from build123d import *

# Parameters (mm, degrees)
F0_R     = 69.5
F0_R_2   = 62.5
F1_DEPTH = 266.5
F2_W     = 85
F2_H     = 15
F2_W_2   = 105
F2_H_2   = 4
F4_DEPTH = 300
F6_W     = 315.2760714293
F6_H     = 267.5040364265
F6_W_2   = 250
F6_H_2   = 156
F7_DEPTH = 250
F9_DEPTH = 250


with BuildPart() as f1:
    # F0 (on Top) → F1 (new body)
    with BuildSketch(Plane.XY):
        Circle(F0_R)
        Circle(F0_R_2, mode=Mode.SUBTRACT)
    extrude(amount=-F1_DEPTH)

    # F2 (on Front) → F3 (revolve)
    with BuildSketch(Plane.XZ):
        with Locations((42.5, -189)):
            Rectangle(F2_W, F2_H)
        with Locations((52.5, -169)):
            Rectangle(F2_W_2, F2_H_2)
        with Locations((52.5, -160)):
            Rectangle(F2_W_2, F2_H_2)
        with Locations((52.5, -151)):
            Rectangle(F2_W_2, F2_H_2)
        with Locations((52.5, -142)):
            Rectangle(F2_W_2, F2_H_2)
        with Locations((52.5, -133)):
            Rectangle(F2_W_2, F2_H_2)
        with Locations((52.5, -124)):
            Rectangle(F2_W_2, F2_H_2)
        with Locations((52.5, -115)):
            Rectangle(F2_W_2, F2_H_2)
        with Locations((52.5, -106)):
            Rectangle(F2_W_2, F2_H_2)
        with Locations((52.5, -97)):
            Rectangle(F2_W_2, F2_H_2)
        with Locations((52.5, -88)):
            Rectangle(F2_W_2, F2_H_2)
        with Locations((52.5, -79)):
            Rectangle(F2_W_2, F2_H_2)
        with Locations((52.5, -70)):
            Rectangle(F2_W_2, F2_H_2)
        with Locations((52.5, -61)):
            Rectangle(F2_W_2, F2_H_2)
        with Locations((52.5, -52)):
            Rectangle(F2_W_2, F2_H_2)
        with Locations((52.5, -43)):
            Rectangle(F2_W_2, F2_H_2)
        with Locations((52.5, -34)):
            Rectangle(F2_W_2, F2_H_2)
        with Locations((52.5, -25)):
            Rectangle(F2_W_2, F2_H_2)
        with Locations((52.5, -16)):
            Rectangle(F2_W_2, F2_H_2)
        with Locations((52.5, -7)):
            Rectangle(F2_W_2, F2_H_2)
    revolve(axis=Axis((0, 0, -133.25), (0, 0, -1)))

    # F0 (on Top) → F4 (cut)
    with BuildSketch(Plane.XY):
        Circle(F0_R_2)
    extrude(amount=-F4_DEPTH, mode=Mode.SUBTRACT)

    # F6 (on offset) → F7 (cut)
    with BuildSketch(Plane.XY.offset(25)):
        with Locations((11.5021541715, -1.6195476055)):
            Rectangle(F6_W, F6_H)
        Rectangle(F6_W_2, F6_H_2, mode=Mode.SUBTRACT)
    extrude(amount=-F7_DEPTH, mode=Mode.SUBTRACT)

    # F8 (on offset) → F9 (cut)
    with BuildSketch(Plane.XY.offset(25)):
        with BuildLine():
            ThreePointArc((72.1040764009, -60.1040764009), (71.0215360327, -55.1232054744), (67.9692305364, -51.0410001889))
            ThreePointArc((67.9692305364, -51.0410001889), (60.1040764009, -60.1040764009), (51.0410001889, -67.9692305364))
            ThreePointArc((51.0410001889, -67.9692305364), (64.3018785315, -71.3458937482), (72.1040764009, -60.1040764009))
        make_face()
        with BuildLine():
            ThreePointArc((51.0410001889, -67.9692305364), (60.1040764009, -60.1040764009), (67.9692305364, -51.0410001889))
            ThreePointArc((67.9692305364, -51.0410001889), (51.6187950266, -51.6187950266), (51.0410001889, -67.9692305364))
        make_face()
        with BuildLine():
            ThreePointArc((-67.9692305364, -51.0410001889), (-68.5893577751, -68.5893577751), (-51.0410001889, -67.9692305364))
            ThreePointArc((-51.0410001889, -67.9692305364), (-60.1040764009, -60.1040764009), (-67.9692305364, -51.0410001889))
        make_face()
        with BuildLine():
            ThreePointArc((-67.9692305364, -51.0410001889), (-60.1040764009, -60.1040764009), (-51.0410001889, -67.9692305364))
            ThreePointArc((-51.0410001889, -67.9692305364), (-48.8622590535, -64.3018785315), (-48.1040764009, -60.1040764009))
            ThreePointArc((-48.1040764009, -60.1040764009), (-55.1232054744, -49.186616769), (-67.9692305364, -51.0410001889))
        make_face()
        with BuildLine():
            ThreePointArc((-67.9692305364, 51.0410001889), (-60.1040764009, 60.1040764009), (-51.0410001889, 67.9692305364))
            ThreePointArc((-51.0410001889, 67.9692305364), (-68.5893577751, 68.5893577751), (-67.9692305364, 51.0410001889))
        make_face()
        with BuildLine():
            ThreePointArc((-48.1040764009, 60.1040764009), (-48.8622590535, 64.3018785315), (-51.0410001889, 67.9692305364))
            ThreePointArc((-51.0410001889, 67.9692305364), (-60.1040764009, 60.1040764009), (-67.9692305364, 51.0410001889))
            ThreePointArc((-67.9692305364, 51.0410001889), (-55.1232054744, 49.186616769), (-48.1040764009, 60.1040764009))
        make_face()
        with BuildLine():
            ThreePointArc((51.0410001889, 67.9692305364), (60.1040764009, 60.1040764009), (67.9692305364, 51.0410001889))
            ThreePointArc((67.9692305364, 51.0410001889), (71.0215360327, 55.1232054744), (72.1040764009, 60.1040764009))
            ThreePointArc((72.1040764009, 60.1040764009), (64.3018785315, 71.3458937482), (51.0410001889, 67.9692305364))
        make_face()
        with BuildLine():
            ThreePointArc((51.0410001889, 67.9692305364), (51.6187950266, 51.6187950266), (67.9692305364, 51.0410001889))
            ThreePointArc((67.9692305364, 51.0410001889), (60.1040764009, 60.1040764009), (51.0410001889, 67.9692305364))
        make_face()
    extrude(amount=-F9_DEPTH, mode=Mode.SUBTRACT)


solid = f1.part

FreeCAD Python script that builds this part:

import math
import FreeCAD as App
import Part
import Sketcher

V = App.Vector


def add_polygon(sketch, points):
    """Adds a closed chain of lines whose ends are joined by coincident constraints."""
    first, n = sketch.GeometryCount, len(points)
    for a, b in zip(points, points[1:] + points[:1]):
        sketch.addGeometry(Part.LineSegment(App.Vector(*a, 0), App.Vector(*b, 0)), False)
    for i in range(n):
        sketch.addConstraint(Sketcher.Constraint("Coincident", first + i, 2, first + (i + 1) % n, 1))

doc = App.newDocument("Part")
body = doc.addObject("PartDesign::Body", "Body")

sketch1 = body.newObject("Sketcher::SketchObject", "Sketch")
sketch1.AttachmentSupport = (doc.getObject("XY_Plane"), [""])
sketch1.MapMode = "FlatFace"
sketch1.addGeometry(Part.Circle(V(0, 0, 0), V(0, 0, 1), 70), False)
sketch1.addGeometry(Part.Circle(V(0, 0, 0), V(0, 0, 1), 62), False)
sketch1.addConstraint(Sketcher.Constraint("Coincident", 0, 3, -1, 1))
sketch1.addConstraint(Sketcher.Constraint("Coincident", 1, 3, -1, 1))
sketch1.addConstraint(Sketcher.Constraint("Diameter", 0, 139.0))
sketch1.addConstraint(Sketcher.Constraint("Diameter", 1, 125.0))
pad1 = body.newObject("PartDesign::Pad", "Pad")
pad1.Profile = sketch1
pad1.Length = 266.5
pad1.Reversed = True

sketch2 = body.newObject("Sketcher::SketchObject", "Sketch001")
sketch2.AttachmentSupport = (doc.getObject("XZ_Plane"), [""])
sketch2.MapMode = "FlatFace"
add_polygon(sketch2, [(0, -181.5), (0, -196.5), (85, -196.5), (85, -181.5)])
add_polygon(sketch2, [(0, -167), (0, -171), (105, -171), (105, -167)])
add_polygon(sketch2, [(0, -158), (0, -162), (105, -162), (105, -158)])
add_polygon(sketch2, [(0, -149), (0, -153), (105, -153), (105, -149)])
add_polygon(sketch2, [(0, -140), (0, -144), (105, -144), (105, -140)])
add_polygon(sketch2, [(0, -131), (0, -135), (105, -135), (105, -131)])
add_polygon(sketch2, [(0, -122), (0, -126), (105, -126), (105, -122)])
add_polygon(sketch2, [(0, -113), (0, -117), (105, -117), (105, -113)])
add_polygon(sketch2, [(0, -104), (0, -108), (105, -108), (105, -104)])
add_polygon(sketch2, [(0, -95), (0, -99), (105, -99), (105, -95)])
add_polygon(sketch2, [(0, -86), (0, -90), (105, -90), (105, -86)])
add_polygon(sketch2, [(0, -77), (0, -81), (105, -81), (105, -77)])
add_polygon(sketch2, [(0, -68), (0, -72), (105, -72), (105, -68)])
add_polygon(sketch2, [(0, -59), (0, -63), (105, -63), (105, -59)])
add_polygon(sketch2, [(0, -50), (0, -54), (105, -54), (105, -50)])
add_polygon(sketch2, [(0, -41), (0, -45), (105, -45), (105, -41)])
add_polygon(sketch2, [(0, -32), (0, -36), (105, -36), (105, -32)])
add_polygon(sketch2, [(0, -23), (0, -27), (105, -27), (105, -23)])
add_polygon(sketch2, [(0, -14), (0, -18), (105, -18), (105, -14)])
add_polygon(sketch2, [(0, -5), (0, -9), (105, -9), (105, -5)])
sketch2.addConstraint(Sketcher.Constraint("Vertical", 0))
sketch2.addConstraint(Sketcher.Constraint("Horizontal", 1))
sketch2.addConstraint(Sketcher.Constraint("Vertical", 2))
sketch2.addConstraint(Sketcher.Constraint("Horizontal", 3))
sketch2.addConstraint(Sketcher.Constraint("Vertical", 4))
sketch2.addConstraint(Sketcher.Constraint("Horizontal", 5))
sketch2.addConstraint(Sketcher.Constraint("Vertical", 6))
sketch2.addConstraint(Sketcher.Constraint("Horizontal", 7))
sketch2.addConstraint(Sketcher.Constraint("Vertical", 8))
sketch2.addConstraint(Sketcher.Constraint("Horizontal", 9))
sketch2.addConstraint(Sketcher.Constraint("Vertical", 10))
sketch2.addConstraint(Sketcher.Constraint("Horizontal", 11))
sketch2.addConstraint(Sketcher.Constraint("Vertical", 12))
sketch2.addConstraint(Sketcher.Constraint("Horizontal", 13))
sketch2.addConstraint(Sketcher.Constraint("Vertical", 14))
sketch2.addConstraint(Sketcher.Constraint("Horizontal", 15))
sketch2.addConstraint(Sketcher.Constraint("Vertical", 16))
sketch2.addConstraint(Sketcher.Constraint("Horizontal", 17))
sketch2.addConstraint(Sketcher.Constraint("Vertical", 18))
sketch2.addConstraint(Sketcher.Constraint("Horizontal", 19))
sketch2.addConstraint(Sketcher.Constraint("Vertical", 20))
sketch2.addConstraint(Sketcher.Constraint("Horizontal", 21))
sketch2.addConstraint(Sketcher.Constraint("Vertical", 22))
sketch2.addConstraint(Sketcher.Constraint("Horizontal", 23))
sketch2.addConstraint(Sketcher.Constraint("Vertical", 24))
sketch2.addConstraint(Sketcher.Constraint("Horizontal", 25))
sketch2.addConstraint(Sketcher.Constraint("Vertical", 26))
sketch2.addConstraint(Sketcher.Constraint("Horizontal", 27))
sketch2.addConstraint(Sketcher.Constraint("Vertical", 28))
sketch2.addConstraint(Sketcher.Constraint("Horizontal", 29))
sketch2.addConstraint(Sketcher.Constraint("Vertical", 30))
sketch2.addConstraint(Sketcher.Constraint("Horizontal", 31))
sketch2.addConstraint(Sketcher.Constraint("Vertical", 32))
sketch2.addConstraint(Sketcher.Constraint("Horizontal", 33))
sketch2.addConstraint(Sketcher.Constraint("Vertical", 34))
sketch2.addConstraint(Sketcher.Constraint("Horizontal", 35))
sketch2.addConstraint(Sketcher.Constraint("Vertical", 36))
sketch2.addConstraint(Sketcher.Constraint("Horizontal", 37))
sketch2.addConstraint(Sketcher.Constraint("Vertical", 38))
sketch2.addConstraint(Sketcher.Constraint("Horizontal", 39))
sketch2.addConstraint(Sketcher.Constraint("Vertical", 40))
sketch2.addConstraint(Sketcher.Constraint("Horizontal", 41))
sketch2.addConstraint(Sketcher.Constraint("Vertical", 42))
sketch2.addConstraint(Sketcher.Constraint("Horizontal", 43))
sketch2.addConstraint(Sketcher.Constraint("Vertical", 44))
sketch2.addConstraint(Sketcher.Constraint("Horizontal", 45))
sketch2.addConstraint(Sketcher.Constraint("Vertical", 46))
sketch2.addConstraint(Sketcher.Constraint("Horizontal", 47))
sketch2.addConstraint(Sketcher.Constraint("Vertical", 48))
sketch2.addConstraint(Sketcher.Constraint("Horizontal", 49))
sketch2.addConstraint(Sketcher.Constraint("Vertical", 50))
sketch2.addConstraint(Sketcher.Constraint("Horizontal", 51))
sketch2.addConstraint(Sketcher.Constraint("Vertical", 52))
sketch2.addConstraint(Sketcher.Constraint("Horizontal", 53))
sketch2.addConstraint(Sketcher.Constraint("Vertical", 54))
sketch2.addConstraint(Sketcher.Constraint("Horizontal", 55))
sketch2.addConstraint(Sketcher.Constraint("Vertical", 56))
sketch2.addConstraint(Sketcher.Constraint("Horizontal", 57))
sketch2.addConstraint(Sketcher.Constraint("Vertical", 58))
sketch2.addConstraint(Sketcher.Constraint("Horizontal", 59))
sketch2.addConstraint(Sketcher.Constraint("Vertical", 60))
sketch2.addConstraint(Sketcher.Constraint("Horizontal", 61))
sketch2.addConstraint(Sketcher.Constraint("Vertical", 62))
sketch2.addConstraint(Sketcher.Constraint("Horizontal", 63))
sketch2.addConstraint(Sketcher.Constraint("Vertical", 64))
sketch2.addConstraint(Sketcher.Constraint("Horizontal", 65))
sketch2.addConstraint(Sketcher.Constraint("Vertical", 66))
sketch2.addConstraint(Sketcher.Constraint("Horizontal", 67))
sketch2.addConstraint(Sketcher.Constraint("Vertical", 68))
sketch2.addConstraint(Sketcher.Constraint("Horizontal", 69))
sketch2.addConstraint(Sketcher.Constraint("Vertical", 70))
sketch2.addConstraint(Sketcher.Constraint("Horizontal", 71))
sketch2.addConstraint(Sketcher.Constraint("Vertical", 72))
sketch2.addConstraint(Sketcher.Constraint("Horizontal", 73))
sketch2.addConstraint(Sketcher.Constraint("Vertical", 74))
sketch2.addConstraint(Sketcher.Constraint("Horizontal", 75))
sketch2.addConstraint(Sketcher.Constraint("Vertical", 76))
sketch2.addConstraint(Sketcher.Constraint("Horizontal", 77))
sketch2.addConstraint(Sketcher.Constraint("Vertical", 78))
sketch2.addConstraint(Sketcher.Constraint("Horizontal", 79))
sketch2.addConstraint(Sketcher.Constraint("PointOnObject", 0, 2, -2))
sketch2.addConstraint(Sketcher.Constraint("PointOnObject", 4, 2, -2))
sketch2.addConstraint(Sketcher.Constraint("PointOnObject", 8, 2, -2))
sketch2.addConstraint(Sketcher.Constraint("PointOnObject", 12, 2, -2))
sketch2.addConstraint(Sketcher.Constraint("PointOnObject", 16, 2, -2))
sketch2.addConstraint(Sketcher.Constraint("PointOnObject", 20, 2, -2))
sketch2.addConstraint(Sketcher.Constraint("PointOnObject", 24, 2, -2))
sketch2.addConstraint(Sketcher.Constraint("PointOnObject", 28, 2, -2))
sketch2.addConstraint(Sketcher.Constraint("PointOnObject", 32, 2, -2))
sketch2.addConstraint(Sketcher.Constraint("PointOnObject", 36, 2, -2))
sketch2.addConstraint(Sketcher.Constraint("PointOnObject", 40, 2, -2))
sketch2.addConstraint(Sketcher.Constraint("PointOnObject", 44, 2, -2))
sketch2.addConstraint(Sketcher.Constraint("PointOnObject", 48, 2, -2))
sketch2.addConstraint(Sketcher.Constraint("PointOnObject", 52, 2, -2))
sketch2.addConstraint(Sketcher.Constraint("PointOnObject", 56, 2, -2))
sketch2.addConstraint(Sketcher.Constraint("PointOnObject", 60, 2, -2))
sketch2.addConstraint(Sketcher.Constraint("PointOnObject", 64, 2, -2))
sketch2.addConstraint(Sketcher.Constraint("PointOnObject", 68, 2, -2))
sketch2.addConstraint(Sketcher.Constraint("PointOnObject", 72, 2, -2))
sketch2.addConstraint(Sketcher.Constraint("PointOnObject", 76, 2, -2))
sketch2.addConstraint(Sketcher.Constraint("Vertical", 6, 2, 9, 2))
sketch2.addConstraint(Sketcher.Constraint("Vertical", 10, 2, 13, 2))
sketch2.addConstraint(Sketcher.Constraint("Vertical", 14, 2, 17, 2))
sketch2.addConstraint(Sketcher.Constraint("Vertical", 18, 2, 21, 2))
sketch2.addConstraint(Sketcher.Constraint("Vertical", 22, 2, 25, 2))
sketch2.addConstraint(Sketcher.Constraint("Vertical", 26, 2, 29, 2))
sketch2.addConstraint(Sketcher.Constraint("Vertical", 30, 2, 33, 2))
sketch2.addConstraint(Sketcher.Constraint("Vertical", 34, 2, 37, 2))
sketch2.addConstraint(Sketcher.Constraint("Vertical", 38, 2, 41, 2))
sketch2.addConstraint(Sketcher.Constraint("Vertical", 42, 2, 45, 2))
sketch2.addConstraint(Sketcher.Constraint("Vertical", 46, 2, 49, 2))
sketch2.addConstraint(Sketcher.Constraint("Vertical", 50, 2, 53, 2))
sketch2.addConstraint(Sketcher.Constraint("Vertical", 54, 2, 57, 2))
sketch2.addConstraint(Sketcher.Constraint("Vertical", 58, 2, 61, 2))
sketch2.addConstraint(Sketcher.Constraint("Vertical", 62, 2, 65, 2))
sketch2.addConstraint(Sketcher.Constraint("Vertical", 66, 2, 69, 2))
sketch2.addConstraint(Sketcher.Constraint("Vertical", 70, 2, 73, 2))
sketch2.addConstraint(Sketcher.Constraint("Vertical", 74, 2, 77, 2))
sketch2.addConstraint(Sketcher.Constraint("Equal", 6, 8))
sketch2.addConstraint(Sketcher.Constraint("Equal", 10, 12))
sketch2.addConstraint(Sketcher.Constraint("Equal", 14, 16))
sketch2.addConstraint(Sketcher.Constraint("Equal", 18, 20))
sketch2.addConstraint(Sketcher.Constraint("Equal", 22, 24))
sketch2.addConstraint(Sketcher.Constraint("Equal", 26, 28))
sketch2.addConstraint(Sketcher.Constraint("Equal", 30, 32))
sketch2.addConstraint(Sketcher.Constraint("Equal", 34, 36))
sketch2.addConstraint(Sketcher.Constraint("Equal", 38, 40))
sketch2.addConstraint(Sketcher.Constraint("Equal", 42, 44))
sketch2.addConstraint(Sketcher.Constraint("Equal", 46, 48))
sketch2.addConstraint(Sketcher.Constraint("Equal", 50, 52))
sketch2.addConstraint(Sketcher.Constraint("Equal", 54, 56))
sketch2.addConstraint(Sketcher.Constraint("Equal", 58, 60))
sketch2.addConstraint(Sketcher.Constraint("Equal", 62, 64))
sketch2.addConstraint(Sketcher.Constraint("Equal", 66, 68))
sketch2.addConstraint(Sketcher.Constraint("Equal", 70, 72))
sketch2.addConstraint(Sketcher.Constraint("Equal", 74, 76))
sketch2.addConstraint(Sketcher.Constraint("DistanceX", 1, 1, 1, 2, 85.0))
sketch2.addConstraint(Sketcher.Constraint("DistanceX", 5, 1, 5, 2, 105.0))
sketch2.addConstraint(Sketcher.Constraint("DistanceY", 0, 2, 0, 1, 15.0))
sketch2.addConstraint(Sketcher.Constraint("DistanceY", 4, 2, 4, 1, 4.0))
sketch2.addConstraint(Sketcher.Constraint("DistanceY", 4, 2, -1, 1, 171.0))
sketch2.addConstraint(Sketcher.Constraint("DistanceY", 8, 2, -1, 1, 162.0))
sketch2.addConstraint(Sketcher.Constraint("DistanceY", 12, 2, -1, 1, 153.0))
sketch2.addConstraint(Sketcher.Constraint("DistanceY", 16, 2, -1, 1, 144.0))
sketch2.addConstraint(Sketcher.Constraint("DistanceY", 20, 2, -1, 1, 135.0))
sketch2.addConstraint(Sketcher.Constraint("DistanceY", 24, 2, -1, 1, 126.0))
sketch2.addConstraint(Sketcher.Constraint("DistanceY", 28, 2, -1, 1, 117.0))
sketch2.addConstraint(Sketcher.Constraint("DistanceY", 32, 2, -1, 1, 108.0))
sketch2.addConstraint(Sketcher.Constraint("DistanceY", 36, 2, -1, 1, 99.0))
sketch2.addConstraint(Sketcher.Constraint("DistanceY", 40, 2, -1, 1, 90.0))
sketch2.addConstraint(Sketcher.Constraint("DistanceY", 44, 2, -1, 1, 81.0))
sketch2.addConstraint(Sketcher.Constraint("DistanceY", 48, 2, -1, 1, 72.0))
sketch2.addConstraint(Sketcher.Constraint("DistanceY", 52, 2, -1, 1, 63.0))
sketch2.addConstraint(Sketcher.Constraint("DistanceY", 56, 2, -1, 1, 54.0))
sketch2.addConstraint(Sketcher.Constraint("DistanceY", 60, 2, -1, 1, 45.0))
sketch2.addConstraint(Sketcher.Constraint("DistanceY", 64, 2, -1, 1, 36.0))
sketch2.addConstraint(Sketcher.Constraint("DistanceY", 68, 2, -1, 1, 27.0))
sketch2.addConstraint(Sketcher.Constraint("DistanceY", 72, 2, -1, 1, 18.0))
sketch2.addConstraint(Sketcher.Constraint("DistanceY", 76, 2, -1, 1, 9.0))
sketch2.addConstraint(Sketcher.Constraint("DistanceY", 0, 2, -1, 1, 196.5))
revolution = body.newObject("PartDesign::Revolution", "Revolution")
revolution.Profile = sketch2
revolution.ReferenceAxis = (sketch2, ["V_Axis"])
revolution.Angle = 360

sketch3 = body.newObject("Sketcher::SketchObject", "Sketch002")
sketch3.AttachmentSupport = (doc.getObject("XY_Plane"), [""])
sketch3.MapMode = "FlatFace"
sketch3.addGeometry(Part.Circle(V(0, 0, 0), V(0, 0, 1), 62), False)
sketch3.addConstraint(Sketcher.Constraint("Coincident", 0, 3, -1, 1))
sketch3.addConstraint(Sketcher.Constraint("Diameter", 0, 125.0))
pocket1 = body.newObject("PartDesign::Pocket", "Pocket")
pocket1.Profile = sketch3
pocket1.Length = 300

sketch4 = body.newObject("Sketcher::SketchObject", "Sketch003")
sketch4.AttachmentSupport = (doc.getObject("XY_Plane"), [""])
sketch4.MapMode = "FlatFace"
sketch4.AttachmentOffset = App.Placement(V(0, 0, 25), App.Rotation())
add_polygon(sketch4, [(-146, 132), (-146, -135), (169, -135), (169, 132)])
add_polygon(sketch4, [(125, -78), (-125, -78), (-125, 78), (125, 78)])
sketch4.addConstraint(Sketcher.Constraint("Vertical", 0))
sketch4.addConstraint(Sketcher.Constraint("Horizontal", 1))
sketch4.addConstraint(Sketcher.Constraint("Vertical", 2))
sketch4.addConstraint(Sketcher.Constraint("Horizontal", 3))
sketch4.addConstraint(Sketcher.Constraint("Horizontal", 4))
sketch4.addConstraint(Sketcher.Constraint("Vertical", 5))
sketch4.addConstraint(Sketcher.Constraint("Horizontal", 6))
sketch4.addConstraint(Sketcher.Constraint("Vertical", 7))
sketch4.addConstraint(Sketcher.Constraint("Symmetric", 4, 2, 6, 2, -1, 1))
sketch4.addConstraint(Sketcher.Constraint("DistanceX", 4, 2, 4, 1, 250.0))
sketch4.addConstraint(Sketcher.Constraint("DistanceY", 5, 1, 5, 2, 156.0))
sketch4.addConstraint(Sketcher.Constraint("DistanceX", 1, 1, 1, 2, 315.276071))
sketch4.addConstraint(Sketcher.Constraint("DistanceY", 0, 2, 0, 1, 267.504036))
sketch4.addConstraint(Sketcher.Constraint("DistanceX", 0, 2, -1, 1, 146.135882))
sketch4.addConstraint(Sketcher.Constraint("DistanceY", -1, 1, 2, 2, 132.132471))
pocket2 = body.newObject("PartDesign::Pocket", "Pocket001")
pocket2.Profile = sketch4
pocket2.Length = 250

sketch5 = body.newObject("Sketcher::SketchObject", "Sketch004")
sketch5.AttachmentSupport = (doc.getObject("XY_Plane"), [""])
sketch5.MapMode = "FlatFace"
sketch5.AttachmentOffset = App.Placement(V(0, 0, 25), App.Rotation())
sketch5.addGeometry(Part.ArcOfCircle(Part.Circle(V(60, -60, 0), V(0, 0, 1), 12), math.radians(0), math.radians(49)), False)
sketch5.addGeometry(Part.ArcOfCircle(Part.Circle(V(60, -60, 0), V(0, 0, 1), 12), math.radians(49), math.radians(221)), False)
sketch5.addGeometry(Part.ArcOfCircle(Part.Circle(V(60, -60, 0), V(0, 0, 1), 12), math.radians(-139), math.radians(0)), False)
sketch5.addGeometry(Part.ArcOfCircle(Part.Circle(V(-60, -60, 0), V(0, 0, 1), 12), math.radians(131), math.radians(360)), False)
sketch5.addGeometry(Part.ArcOfCircle(Part.Circle(V(-60, -60, 0), V(0, 0, 1), 12), math.radians(0), math.radians(131)), False)
sketch5.addGeometry(Part.Circle(V(-60, 60, 0), V(0, 0, 1), 12), False)
sketch5.addGeometry(Part.ArcOfCircle(Part.Circle(V(60, 60, 0), V(0, 0, 1), 12), math.radians(-49), math.radians(0)), False)
sketch5.addGeometry(Part.ArcOfCircle(Part.Circle(V(60, 60, 0), V(0, 0, 1), 12), math.radians(0), math.radians(139)), False)
sketch5.addGeometry(Part.ArcOfCircle(Part.Circle(V(60, 60, 0), V(0, 0, 1), 12), math.radians(139), math.radians(311)), False)
sketch5.addConstraint(Sketcher.Constraint("Tangent", 0, 2, 1, 1))
sketch5.addConstraint(Sketcher.Constraint("Tangent", 1, 2, 2, 1))
sketch5.addConstraint(Sketcher.Constraint("Tangent", 2, 2, 0, 1))
sketch5.addConstraint(Sketcher.Constraint("Tangent", 3, 1, 4, 2))
sketch5.addConstraint(Sketcher.Constraint("Coincident", 4, 1, 3, 2))
sketch5.addConstraint(Sketcher.Constraint("Tangent", 6, 2, 7, 1))
sketch5.addConstraint(Sketcher.Constraint("Tangent", 7, 2, 8, 1))
sketch5.addConstraint(Sketcher.Constraint("Tangent", 8, 2, 6, 1))
sketch5.addConstraint(Sketcher.Constraint("Equal", 2, 3))
sketch5.addConstraint(Sketcher.Constraint("Equal", 4, 5))
sketch5.addConstraint(Sketcher.Constraint("Equal", 5, 6))
sketch5.addConstraint(Sketcher.Constraint("Symmetric", 0, 3, 5, 3, -1, 1))
sketch5.addConstraint(Sketcher.Constraint("Symmetric", 3, 3, 6, 3, -1, 1))
sketch5.addConstraint(Sketcher.Constraint("Symmetric", 0, 3, 3, 3, -2))
sketch5.addConstraint(Sketcher.Constraint("Horizontal", 4, 3, 2, 2))
sketch5.addConstraint(Sketcher.Constraint("Horizontal", 0, 2, 3, 1))
sketch5.addConstraint(Sketcher.Constraint("Horizontal", 2, 2, 4, 1))
sketch5.addConstraint(Sketcher.Constraint("Horizontal", 8, 3, 6, 2))
sketch5.addConstraint(Sketcher.Constraint("Vertical", 1, 2, 7, 2))
sketch5.addConstraint(Sketcher.Constraint("Vertical", 0, 2, 8, 2))
sketch5.addConstraint(Sketcher.Constraint("Diameter", 5, 24.0))
sketch5.addConstraint(Sketcher.Constraint("DistanceY", 0, 2, -1, 1, 51.041))
sketch5.addConstraint(Sketcher.Constraint("DistanceX", -1, 1, 1, 2, 51.041))
sketch5.addConstraint(Sketcher.Constraint("DistanceX", -1, 1, 0, 2, 67.969231))
sketch5.addConstraint(Sketcher.Constraint("DistanceY", 1, 2, -1, 1, 67.969231))
pocket3 = body.newObject("PartDesign::Pocket", "Pocket002")
pocket3.Profile = sketch5
pocket3.Length = 250

doc.recompute()
